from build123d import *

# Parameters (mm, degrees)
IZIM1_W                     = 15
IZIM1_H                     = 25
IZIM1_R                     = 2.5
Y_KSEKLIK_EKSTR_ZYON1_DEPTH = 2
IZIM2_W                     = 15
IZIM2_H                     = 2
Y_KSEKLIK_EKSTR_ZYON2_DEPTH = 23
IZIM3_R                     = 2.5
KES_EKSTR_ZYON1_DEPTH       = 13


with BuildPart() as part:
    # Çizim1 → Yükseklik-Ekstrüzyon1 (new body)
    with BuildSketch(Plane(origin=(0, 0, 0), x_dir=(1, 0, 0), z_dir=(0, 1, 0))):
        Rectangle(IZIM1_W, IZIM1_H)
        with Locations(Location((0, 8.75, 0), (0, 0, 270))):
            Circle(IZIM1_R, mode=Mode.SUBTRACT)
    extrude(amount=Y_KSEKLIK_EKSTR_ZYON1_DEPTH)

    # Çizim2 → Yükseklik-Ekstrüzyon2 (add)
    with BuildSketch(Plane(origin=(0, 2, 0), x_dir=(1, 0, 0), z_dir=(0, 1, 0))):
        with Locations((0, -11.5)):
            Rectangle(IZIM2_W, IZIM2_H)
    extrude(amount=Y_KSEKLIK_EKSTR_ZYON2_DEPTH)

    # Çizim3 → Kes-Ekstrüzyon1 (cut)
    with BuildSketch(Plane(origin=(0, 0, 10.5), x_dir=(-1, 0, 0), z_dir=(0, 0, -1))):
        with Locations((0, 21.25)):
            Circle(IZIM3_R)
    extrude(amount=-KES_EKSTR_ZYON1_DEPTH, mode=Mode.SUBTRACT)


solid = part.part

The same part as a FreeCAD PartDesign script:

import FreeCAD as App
import Part
import Sketcher
from FreeCAD import Vector

doc = App.newDocument("Part")
body = doc.addObject("PartDesign::Body", "Body")

# Sketch on XZ plane
sketch1 = body.newObject("Sketcher::SketchObject", "Sketch")
sketch1.AttachmentSupport = (doc.getObject("XZ_Plane"), [""])
sketch1.MapMode = "FlatFace"
sketch1.addGeometry([
    Part.LineSegment(Vector(-7.5, -12.5, 0), Vector(-7.5, 12.5, 0)),  # 0
    Part.LineSegment(Vector(-7.5, 12.5, 0), Vector(7.5, 12.5, 0)),  # 1
    Part.LineSegment(Vector(7.5, 12.5, 0), Vector(7.5, -12.5, 0)),  # 2
    Part.LineSegment(Vector(7.5, -12.5, 0), Vector(-7.5, -12.5, 0)),  # 3
    Part.Circle(Vector(0, -8.8, 0), Vector(0, 0, 1), 2.5),  # 4
], False)
sketch1.addConstraint([
    Sketcher.Constraint("Coincident", 0, 2, 1, 1),
    Sketcher.Constraint("Coincident", 1, 2, 2, 1),
    Sketcher.Constraint("Coincident", 2, 2, 3, 1),
    Sketcher.Constraint("Coincident", 3, 2, 0, 1),
    Sketcher.Constraint("Vertical", 0),
    Sketcher.Constraint("Horizontal", 1),
    Sketcher.Constraint("Vertical", 2),
    Sketcher.Constraint("Horizontal", 3),
    Sketcher.Constraint("Symmetric", 0, 2, 2, 2, -1, 1),
    Sketcher.Constraint("PointOnObject", 4, 3, -2),
    Sketcher.Constraint("Diameter", 4, 5.0),
    Sketcher.Constraint("DistanceX", 1, 1, 1, 2, 15.0),
    Sketcher.Constraint("DistanceY", 0, 1, 0, 2, 25.0),
    Sketcher.Constraint("DistanceY", 4, 3, -1, 1, 8.75),
])
pad1 = body.newObject("PartDesign::Pad", "Pad")
pad1.Profile = sketch1
pad1.Length = 2
pad1.Reversed = True

# Sketch on XZ plane
sketch2 = body.newObject("Sketcher::SketchObject", "Sketch001")
sketch2.AttachmentSupport = (doc.getObject("XZ_Plane"), [""])
sketch2.MapMode = "FlatFace"
sketch2.AttachmentOffset = App.Placement(Vector(0, 0, -2), App.Rotation())
sketch2.addGeometry([
    Part.LineSegment(Vector(-7.5, 10.5, 0), Vector(-7.5, 12.5, 0)),
    Part.LineSegment(Vector(-7.5, 12.5, 0), Vector(7.5, 12.5, 0)),
    Part.LineSegment(Vector(7.5, 12.5, 0), Vector(7.5, 10.5, 0)),
    Part.LineSegment(Vector(7.5, 10.5, 0), Vector(-7.5, 10.5, 0)),
], False)
sketch2.addConstraint([
    Sketcher.Constraint("Coincident", 0, 2, 1, 1),
    Sketcher.Constraint("Coincident", 1, 2, 2, 1),
    Sketcher.Constraint("Coincident", 2, 2, 3, 1),
    Sketcher.Constraint("Coincident", 3, 2, 0, 1),
    Sketcher.Constraint("Vertical", 0),
    Sketcher.Constraint("Horizontal", 1),
    Sketcher.Constraint("Vertical", 2),
    Sketcher.Constraint("Horizontal", 3),
    Sketcher.Constraint("DistanceX", 1, 1, 1, 2, 15.0),
    Sketcher.Constraint("DistanceY", 0, 1, 0, 2, 2.0),
    Sketcher.Constraint("DistanceX", 0, 2, -1, 1, 7.5),
    Sketcher.Constraint("DistanceY", -1, 1, 0, 2, 12.5),
])
pad2 = body.newObject("PartDesign::Pad", "Pad001")
pad2.Profile = sketch2
pad2.Length = 23
pad2.Reversed = True

# Sketch on XY plane
sketch3 = body.newObject("Sketcher::SketchObject", "Sketch002")
sketch3.AttachmentSupport = (doc.getObject("XY_Plane"), [""])
sketch3.MapMode = "FlatFace"
sketch3.AttachmentOffset = App.Placement(Vector(0, 0, 10.5), App.Rotation())
sketch3.addGeometry(Part.Circle(Vector(0, 21.2, 0), Vector(0, 0, 1), 2.5), False)
sketch3.addConstraint([
    Sketcher.Constraint("PointOnObject", 0, 3, -2),
    Sketcher.Constraint("Diameter", 0, 5.0),
    Sketcher.Constraint("DistanceY", -1, 1, 0, 3, 21.25),
])
pocket1 = body.newObject("PartDesign::Pocket", "Pocket")
pocket1.Profile = sketch3
pocket1.Length = 13
pocket1.Reversed = True

doc.recompute()
